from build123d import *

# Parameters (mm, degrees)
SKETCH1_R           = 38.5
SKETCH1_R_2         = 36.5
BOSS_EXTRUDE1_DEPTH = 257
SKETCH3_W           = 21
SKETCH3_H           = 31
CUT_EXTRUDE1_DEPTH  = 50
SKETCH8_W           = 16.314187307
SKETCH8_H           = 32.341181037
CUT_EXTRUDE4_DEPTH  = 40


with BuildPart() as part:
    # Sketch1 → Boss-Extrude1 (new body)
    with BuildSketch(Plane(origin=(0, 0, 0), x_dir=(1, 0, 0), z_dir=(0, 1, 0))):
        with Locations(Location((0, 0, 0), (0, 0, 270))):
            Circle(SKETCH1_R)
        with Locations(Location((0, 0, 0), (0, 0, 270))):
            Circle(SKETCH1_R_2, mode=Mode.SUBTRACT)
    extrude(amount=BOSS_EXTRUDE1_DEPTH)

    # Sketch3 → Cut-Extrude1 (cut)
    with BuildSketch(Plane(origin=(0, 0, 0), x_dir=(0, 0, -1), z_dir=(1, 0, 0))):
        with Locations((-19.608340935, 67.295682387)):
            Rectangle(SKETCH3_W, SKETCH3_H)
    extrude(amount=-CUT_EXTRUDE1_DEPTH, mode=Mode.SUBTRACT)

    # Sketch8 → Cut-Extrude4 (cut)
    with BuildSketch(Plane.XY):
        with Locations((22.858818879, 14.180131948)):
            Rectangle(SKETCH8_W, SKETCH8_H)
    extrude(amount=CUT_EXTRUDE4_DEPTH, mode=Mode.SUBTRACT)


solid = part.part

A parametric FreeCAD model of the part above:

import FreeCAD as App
import Part
import Sketcher
Q = App.Units.Quantity

doc = App.newDocument("Part")
body = doc.addObject("PartDesign::Body", "Body")

sketch1 = body.newObject("Sketcher::SketchObject", "Sketch")
sketch1.AttachmentSupport = (doc.getObject("XZ_Plane"), [""])
sketch1.MapMode = "FlatFace"
sketch1.addGeometry(Part.Circle(App.Vector(0, 0, 0), App.Vector(0, 0, 1), 38), False)
sketch1.addGeometry(Part.Circle(App.Vector(0, 0, 0), App.Vector(0, 0, 1), 36), False)
sketch1.addConstraint(Sketcher.Constraint("Coincident", 0, 3, -1, 1))
sketch1.addConstraint(Sketcher.Constraint("Coincident", 1, 3, -1, 1))
sketch1.addConstraint(Sketcher.Constraint("Diameter", 0, Q("77 mm")))
sketch1.addConstraint(Sketcher.Constraint("Diameter", 1, Q("73 mm")))
pad1 = body.newObject("PartDesign::Pad", "Pad")
pad1.Profile = sketch1
pad1.Length = 257
pad1.Reversed = True

sketch2 = body.newObject("Sketcher::SketchObject", "Sketch001")
sketch2.AttachmentSupport = (doc.getObject("YZ_Plane"), [""])
sketch2.MapMode = "FlatFace"
sketch2.addGeometry(Part.LineSegment(App.Vector(83, 30, 0), App.Vector(52, 30, 0)), False)
sketch2.addGeometry(Part.LineSegment(App.Vector(52, 30, 0), App.Vector(52, 9, 0)), False)
sketch2.addGeometry(Part.LineSegment(App.Vector(52, 9, 0), App.Vector(83, 9, 0)), False)
sketch2.addGeometry(Part.LineSegment(App.Vector(83, 9, 0), App.Vector(83, 30, 0)), False)
sketch2.addConstraint(Sketcher.Constraint("Coincident", 0, 2, 1, 1))
sketch2.addConstraint(Sketcher.Constraint("Coincident", 1, 2, 2, 1))
sketch2.addConstraint(Sketcher.Constraint("Coincident", 2, 2, 3, 1))
sketch2.addConstraint(Sketcher.Constraint("Coincident", 3, 2, 0, 1))
sketch2.addConstraint(Sketcher.Constraint("Horizontal", 0))
sketch2.addConstraint(Sketcher.Constraint("Vertical", 1))
sketch2.addConstraint(Sketcher.Constraint("Horizontal", 2))
sketch2.addConstraint(Sketcher.Constraint("Vertical", 3))
sketch2.addConstraint(Sketcher.Constraint("DistanceX", 0, 2, 0, 1, Q("31 mm")))
sketch2.addConstraint(Sketcher.Constraint("DistanceY", 1, 2, 1, 1, Q("21 mm")))
sketch2.addConstraint(Sketcher.Constraint("DistanceY", -1, 1, 0, 2, Q("30.108341 mm")))
sketch2.addConstraint(Sketcher.Constraint("DistanceX", -1, 1, 0, 2, Q("51.795682 mm")))
pocket1 = body.newObject("PartDesign::Pocket", "Pocket")
pocket1.Profile = sketch2
pocket1.Length = 50

sketch3 = body.newObject("Sketcher::SketchObject", "Sketch002")
sketch3.AttachmentSupport = (doc.getObject("XY_Plane"), [""])
sketch3.MapMode = "FlatFace"
sketch3.addGeometry(Part.LineSegment(App.Vector(15, 30, 0), App.Vector(15, -2, 0)), False)
sketch3.addGeometry(Part.LineSegment(App.Vector(15, -2, 0), App.Vector(31, -2, 0)), False)
sketch3.addGeometry(Part.LineSegment(App.Vector(31, -2, 0), App.Vector(31, 30, 0)), False)
sketch3.addGeometry(Part.LineSegment(App.Vector(31, 30, 0), App.Vector(15, 30, 0)), False)
sketch3.addConstraint(Sketcher.Constraint("Coincident", 0, 2, 1, 1))
sketch3.addConstraint(Sketcher.Constraint("Coincident", 1, 2, 2, 1))
sketch3.addConstraint(Sketcher.Constraint("Coincident", 2, 2, 3, 1))
sketch3.addConstraint(Sketcher.Constraint("Coincident", 3, 2, 0, 1))
sketch3.addConstraint(Sketcher.Constraint("Vertical", 0))
sketch3.addConstraint(Sketcher.Constraint("Horizontal", 1))
sketch3.addConstraint(Sketcher.Constraint("Vertical", 2))
sketch3.addConstraint(Sketcher.Constraint("Horizontal", 3))
sketch3.addConstraint(Sketcher.Constraint("DistanceY", 0, 2, 0, 1, Q("32.341181 mm")))
sketch3.addConstraint(Sketcher.Constraint("DistanceX", 1, 1, 1, 2, Q("16.314187 mm")))
sketch3.addConstraint(Sketcher.Constraint("DistanceY", 0, 2, -1, 1, Q("1.990459 mm")))
sketch3.addConstraint(Sketcher.Constraint("DistanceX", -1, 1, 0, 2, Q("14.701725 mm")))
pocket2 = body.newObject("PartDesign::Pocket", "Pocket001")
pocket2.Profile = sketch3
pocket2.Length = 40
pocket2.Reversed = True

doc.recompute()
